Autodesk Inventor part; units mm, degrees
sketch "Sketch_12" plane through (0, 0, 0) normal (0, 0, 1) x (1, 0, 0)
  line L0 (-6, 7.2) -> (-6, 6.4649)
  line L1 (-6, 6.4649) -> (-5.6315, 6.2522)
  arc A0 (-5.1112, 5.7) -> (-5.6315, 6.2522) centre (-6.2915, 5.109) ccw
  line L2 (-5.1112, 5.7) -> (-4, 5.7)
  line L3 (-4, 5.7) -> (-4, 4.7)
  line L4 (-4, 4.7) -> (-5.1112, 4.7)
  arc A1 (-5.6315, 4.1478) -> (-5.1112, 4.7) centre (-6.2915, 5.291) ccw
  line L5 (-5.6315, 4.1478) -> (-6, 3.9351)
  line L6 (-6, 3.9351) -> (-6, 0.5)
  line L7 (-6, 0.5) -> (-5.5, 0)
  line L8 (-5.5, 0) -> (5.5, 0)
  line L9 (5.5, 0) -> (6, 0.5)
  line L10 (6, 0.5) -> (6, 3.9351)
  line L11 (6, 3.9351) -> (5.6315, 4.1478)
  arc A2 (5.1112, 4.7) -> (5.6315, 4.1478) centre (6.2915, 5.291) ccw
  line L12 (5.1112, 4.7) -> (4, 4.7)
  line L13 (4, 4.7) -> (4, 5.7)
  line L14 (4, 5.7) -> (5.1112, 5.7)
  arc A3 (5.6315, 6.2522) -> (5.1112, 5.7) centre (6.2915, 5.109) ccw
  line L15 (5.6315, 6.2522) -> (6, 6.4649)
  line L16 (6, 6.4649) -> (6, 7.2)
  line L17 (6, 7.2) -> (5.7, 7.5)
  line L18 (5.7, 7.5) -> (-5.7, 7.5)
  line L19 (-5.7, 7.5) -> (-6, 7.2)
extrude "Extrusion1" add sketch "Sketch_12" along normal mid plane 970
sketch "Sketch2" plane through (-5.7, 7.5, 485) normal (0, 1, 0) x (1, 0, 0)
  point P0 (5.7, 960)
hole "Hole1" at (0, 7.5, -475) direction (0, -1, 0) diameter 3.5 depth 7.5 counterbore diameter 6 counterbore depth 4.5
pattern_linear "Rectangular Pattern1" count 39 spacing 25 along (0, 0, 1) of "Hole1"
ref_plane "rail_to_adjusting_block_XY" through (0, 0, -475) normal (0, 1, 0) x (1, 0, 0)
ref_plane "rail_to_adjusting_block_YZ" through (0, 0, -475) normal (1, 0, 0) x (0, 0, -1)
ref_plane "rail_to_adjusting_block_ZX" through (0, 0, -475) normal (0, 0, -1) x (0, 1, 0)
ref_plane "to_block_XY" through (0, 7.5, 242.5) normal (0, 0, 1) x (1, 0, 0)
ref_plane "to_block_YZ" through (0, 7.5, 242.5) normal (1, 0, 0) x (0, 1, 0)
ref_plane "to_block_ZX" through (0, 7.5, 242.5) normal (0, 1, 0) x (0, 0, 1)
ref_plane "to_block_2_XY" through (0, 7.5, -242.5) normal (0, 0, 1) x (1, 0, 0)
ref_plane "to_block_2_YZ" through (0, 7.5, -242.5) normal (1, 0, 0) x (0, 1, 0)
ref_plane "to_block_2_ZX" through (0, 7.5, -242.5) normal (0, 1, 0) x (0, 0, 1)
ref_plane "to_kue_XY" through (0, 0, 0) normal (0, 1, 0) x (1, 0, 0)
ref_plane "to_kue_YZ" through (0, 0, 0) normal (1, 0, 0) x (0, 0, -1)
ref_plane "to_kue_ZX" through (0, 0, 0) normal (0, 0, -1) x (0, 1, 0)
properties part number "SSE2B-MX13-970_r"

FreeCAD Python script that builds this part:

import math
import FreeCAD as App
import Part
import Sketcher
Q = App.Units.Quantity

doc = App.newDocument("Part")
params = doc.addObject("Spreadsheet::Sheet", "Params")
for row, (alias, value) in enumerate([
    ("sketch1_width", "11 mm"),
    ("sketch1_height", "1 mm"),
    ("sketch1_radius", "1.32 mm"),
    ("sketch1_width2", "11.4 mm"),
    ("pad1_length", "970 mm"),
    ("sketch2_diameter", "3.5 mm"),
    ("hole_diameter", "3.5 mm"),
    ("hole_depth", "7.5 mm"),
    ("hole_cbore_diameter", "6 mm"),
    ("hole_cbore_depth", "4.5 mm"),
    ("linearpattern_pitch", "25 mm"),
], start=1):
    params.set(f"A{row}", alias)
    params.set(f"B{row}", "=" + value)
    params.setAlias(f"B{row}", alias)

body = doc.addObject("PartDesign::Body", "Body")

sketch1 = doc.addObject("Sketcher::SketchObject", "Sketch")
body.addObject(sketch1)
sketch1.AttachmentSupport = (doc.XY_Plane, [""])
sketch1.MapMode = "FlatFace"
sketch1.addGeometry(Part.LineSegment(App.Vector(-5.7, 7.5, 0), App.Vector(-6, 7.2, 0)), False)
sketch1.addGeometry(Part.LineSegment(App.Vector(-6, 7.2, 0), App.Vector(-6, 6.46, 0)), False)
sketch1.addGeometry(Part.LineSegment(App.Vector(-6, 6.46, 0), App.Vector(-5.63, 6.25, 0)), False)
sketch1.addGeometry(Part.ArcOfCircle(Part.Circle(App.Vector(-6.29, 5.11, 0), App.Vector(0, 0, 1), 1.32), math.radians(27), math.radians(60)), False)
sketch1.addGeometry(Part.LineSegment(App.Vector(-5.11, 5.7, 0), App.Vector(-4, 5.7, 0)), False)
sketch1.addGeometry(Part.LineSegment(App.Vector(-4, 5.7, 0), App.Vector(-4, 4.7, 0)), False)
sketch1.addGeometry(Part.LineSegment(App.Vector(-4, 4.7, 0), App.Vector(-5.11, 4.7, 0)), False)
sketch1.addGeometry(Part.ArcOfCircle(Part.Circle(App.Vector(-6.29, 5.29, 0), App.Vector(0, 0, 1), 1.32), math.radians(-60), math.radians(-27)), False)
sketch1.addGeometry(Part.LineSegment(App.Vector(-5.63, 4.15, 0), App.Vector(-6, 3.94, 0)), False)
sketch1.addGeometry(Part.LineSegment(App.Vector(-6, 3.94, 0), App.Vector(-6, 0.5, 0)), False)
sketch1.addGeometry(Part.LineSegment(App.Vector(-6, 0.5, 0), App.Vector(-5.5, 0, 0)), False)
sketch1.addGeometry(Part.LineSegment(App.Vector(-5.5, 0, 0), App.Vector(5.5, 0, 0)), False)
sketch1.addGeometry(Part.LineSegment(App.Vector(5.5, 0, 0), App.Vector(6, 0.5, 0)), False)
sketch1.addGeometry(Part.LineSegment(App.Vector(6, 0.5, 0), App.Vector(6, 3.94, 0)), False)
sketch1.addGeometry(Part.LineSegment(App.Vector(6, 3.94, 0), App.Vector(5.63, 4.15, 0)), False)
sketch1.addGeometry(Part.ArcOfCircle(Part.Circle(App.Vector(6.29, 5.29, 0), App.Vector(0, 0, 1), 1.32), math.radians(-153), math.radians(-120)), False)
sketch1.addGeometry(Part.LineSegment(App.Vector(5.11, 4.7, 0), App.Vector(4, 4.7, 0)), False)
sketch1.addGeometry(Part.LineSegment(App.Vector(4, 4.7, 0), App.Vector(4, 5.7, 0)), False)
sketch1.addGeometry(Part.LineSegment(App.Vector(4, 5.7, 0), App.Vector(5.11, 5.7, 0)), False)
sketch1.addGeometry(Part.ArcOfCircle(Part.Circle(App.Vector(6.29, 5.11, 0), App.Vector(0, 0, 1), 1.32), math.radians(120), math.radians(153)), False)
sketch1.addGeometry(Part.LineSegment(App.Vector(5.63, 6.25, 0), App.Vector(6, 6.46, 0)), False)
sketch1.addGeometry(Part.LineSegment(App.Vector(6, 6.46, 0), App.Vector(6, 7.2, 0)), False)
sketch1.addGeometry(Part.LineSegment(App.Vector(6, 7.2, 0), App.Vector(5.7, 7.5, 0)), False)
sketch1.addGeometry(Part.LineSegment(App.Vector(5.7, 7.5, 0), App.Vector(-5.7, 7.5, 0)), False)
sketch1.addConstraint(Sketcher.Constraint("Coincident", 0, 2, 1, 1))
sketch1.addConstraint(Sketcher.Constraint("Coincident", 1, 2, 2, 1))
sketch1.addConstraint(Sketcher.Constraint("Tangent", 2, 2, 3, 2))
sketch1.addConstraint(Sketcher.Constraint("Coincident", 3, 1, 4, 1))
sketch1.addConstraint(Sketcher.Constraint("Coincident", 4, 2, 5, 1))
sketch1.addConstraint(Sketcher.Constraint("Coincident", 5, 2, 6, 1))
sketch1.addConstraint(Sketcher.Constraint("Coincident", 6, 2, 7, 2))
sketch1.addConstraint(Sketcher.Constraint("Tangent", 7, 1, 8, 1))
sketch1.addConstraint(Sketcher.Constraint("Coincident", 8, 2, 9, 1))
sketch1.addConstraint(Sketcher.Constraint("Coincident", 9, 2, 10, 1))
sketch1.addConstraint(Sketcher.Constraint("Coincident", 10, 2, 11, 1))
sketch1.addConstraint(Sketcher.Constraint("Coincident", 11, 2, 12, 1))
sketch1.addConstraint(Sketcher.Constraint("Coincident", 12, 2, 13, 1))
sketch1.addConstraint(Sketcher.Constraint("Coincident", 13, 2, 14, 1))
sketch1.addConstraint(Sketcher.Constraint("Tangent", 14, 2, 15, 2))
sketch1.addConstraint(Sketcher.Constraint("Coincident", 15, 1, 16, 1))
sketch1.addConstraint(Sketcher.Constraint("Coincident", 16, 2, 17, 1))
sketch1.addConstraint(Sketcher.Constraint("Coincident", 17, 2, 18, 1))
sketch1.addConstraint(Sketcher.Constraint("Coincident", 18, 2, 19, 2))
sketch1.addConstraint(Sketcher.Constraint("Tangent", 19, 1, 20, 1))
sketch1.addConstraint(Sketcher.Constraint("Coincident", 20, 2, 21, 1))
sketch1.addConstraint(Sketcher.Constraint("Coincident", 21, 2, 22, 1))
sketch1.addConstraint(Sketcher.Constraint("Coincident", 22, 2, 23, 1))
sketch1.addConstraint(Sketcher.Constraint("Coincident", 23, 2, 0, 1))
sketch1.addConstraint(Sketcher.Constraint("Vertical", 1))
sketch1.addConstraint(Sketcher.Constraint("Horizontal", 4))
sketch1.addConstraint(Sketcher.Constraint("Vertical", 5))
sketch1.addConstraint(Sketcher.Constraint("Horizontal", 6))
sketch1.addConstraint(Sketcher.Constraint("Vertical", 9))
sketch1.addConstraint(Sketcher.Constraint("Horizontal", 11))
sketch1.addConstraint(Sketcher.Constraint("Vertical", 13))
sketch1.addConstraint(Sketcher.Constraint("Horizontal", 16))
sketch1.addConstraint(Sketcher.Constraint("Vertical", 17))
sketch1.addConstraint(Sketcher.Constraint("Horizontal", 18))
sketch1.addConstraint(Sketcher.Constraint("Vertical", 21))
sketch1.addConstraint(Sketcher.Constraint("Horizontal", 23))
sketch1.addConstraint(Sketcher.Constraint("Equal", 3, 7))
sketch1.addConstraint(Sketcher.Constraint("Equal", 7, 15))
sketch1.addConstraint(Sketcher.Constraint("Equal", 15, 19))
sketch1.addConstraint(Sketcher.Constraint("Symmetric", 10, 2, 11, 2, -1, 1))
sketch1.addConstraint(Sketcher.Constraint("Symmetric", 7, 3, 15, 3, -2))
sketch1.addConstraint(Sketcher.Constraint("Symmetric", 3, 3, 19, 3, -2))
sketch1.addConstraint(Sketcher.Constraint("Symmetric", 9, 2, 12, 2, -2))
sketch1.addConstraint(Sketcher.Constraint("Symmetric", 5, 2, 16, 2, -2))
sketch1.addConstraint(Sketcher.Constraint("Symmetric", 1, 2, 20, 2, -2))
sketch1.addConstraint(Sketcher.Constraint("Perpendicular", 0, 10))
sketch1.addConstraint(Sketcher.Constraint("Perpendicular", 10, 12))
sketch1.addConstraint(Sketcher.Constraint("Parallel", 2, 14))
sketch1.addConstraint(Sketcher.Constraint("Parallel", 8, 20))
sketch1.addConstraint(Sketcher.Constraint("Perpendicular", 12, 22))
sketch1.addConstraint(Sketcher.Constraint("Horizontal", 4, 2, 17, 2))
sketch1.addConstraint(Sketcher.Constraint("Horizontal", 0, 2, 21, 2))
sketch1.addConstraint(Sketcher.Constraint("Vertical", 3, 3, 7, 3))
sketch1.addConstraint(Sketcher.Constraint("Vertical", 3, 1, 6, 2))
sketch1.addConstraint(Sketcher.Constraint("Vertical", 1, 2, 8, 2))
sketch1.addConstraint(Sketcher.Constraint("DistanceX", 11, 1, 11, 2, Q("11 mm")))
sketch1.addConstraint(Sketcher.Constraint("DistanceY", 5, 2, 5, 1, Q("1 mm")))
sketch1.addConstraint(Sketcher.Constraint("Radius", 3, Q("1.32 mm")))
sketch1.addConstraint(Sketcher.Constraint("DistanceX", 23, 2, 23, 1, Q("11.4 mm")))
sketch1.addConstraint(Sketcher.Constraint("DistanceX", 0, 2, -1, 1, Q("6 mm")))
sketch1.addConstraint(Sketcher.Constraint("DistanceX", 4, 2, -1, 1, Q("4 mm")))
sketch1.addConstraint(Sketcher.Constraint("DistanceY", -1, 1, 0, 2, Q("7.2 mm")))
sketch1.addConstraint(Sketcher.Constraint("DistanceY", -1, 1, 3, 1, Q("5.7 mm")))
sketch1.addConstraint(Sketcher.Constraint("DistanceY", 1, 2, 1, 1, Q("0.735 mm")))
sketch1.addConstraint(Sketcher.Constraint("DistanceX", 7, 3, 2, 2, Q("0.66 mm")))
sketch1.addConstraint(Sketcher.Constraint("DistanceX", 4, 1, 4, 2, Q("1.1112 mm")))
sketch1.setExpression("Constraints[55]", "Params.sketch1_width")
sketch1.setExpression("Constraints[56]", "Params.sketch1_height")
sketch1.setExpression("Constraints[57]", "Params.sketch1_radius")
sketch1.setExpression("Constraints[58]", "Params.sketch1_width2")
pad1 = doc.addObject("PartDesign::Pad", "Pad")
body.addObject(pad1)
pad1.Profile = sketch1
pad1.setExpression("Length", "Params.pad1_length")
pad1.Midplane = True

sketch2 = doc.addObject("Sketcher::SketchObject", "Sketch001")
body.addObject(sketch2)
sketch2.AttachmentSupport = (doc.XZ_Plane, [""])
sketch2.MapMode = "FlatFace"
sketch2.AttachmentOffset = App.Placement(App.Vector(0, 0, -7.5), App.Rotation())
sketch2.addGeometry(Part.Circle(App.Vector(0, -475, 0), App.Vector(0, 0, 1), 1.8), False)
sketch2.addConstraint(Sketcher.Constraint("PointOnObject", 0, 3, -2))
sketch2.addConstraint(Sketcher.Constraint("Diameter", 0, Q("3.5 mm")))
sketch2.addConstraint(Sketcher.Constraint("DistanceY", 0, 3, -1, 1, Q("475 mm")))
sketch2.setExpression("Constraints[1]", "Params.sketch2_diameter")
doc.recompute()
hole = doc.addObject("PartDesign::Hole", "Hole")
body.addObject(hole)
hole.Profile = sketch2
hole.ThreadType = "None"
hole.setExpression("Diameter", "Params.hole_diameter")
hole.DepthType = "Dimension"
hole.setExpression("Depth", "Params.hole_depth")
hole.DrillPoint = "Flat"
hole.HoleCutType = "Counterbore"
hole.setExpression("HoleCutDiameter", "Params.hole_cbore_diameter")
hole.setExpression("HoleCutDepth", "Params.hole_cbore_depth")
hole.Reversed = True
doc.recompute()

linearpattern = doc.addObject("PartDesign::LinearPattern", "LinearPattern")
body.addObject(linearpattern)
linearpattern.Originals = [hole]
linearpattern.Direction = (doc.Z_Axis, [""])
linearpattern.Mode = "offset"
linearpattern.setExpression("Offset", "Params.linearpattern_pitch")
linearpattern.Occurrences = 39
body.Tip = linearpattern

doc.recompute()
